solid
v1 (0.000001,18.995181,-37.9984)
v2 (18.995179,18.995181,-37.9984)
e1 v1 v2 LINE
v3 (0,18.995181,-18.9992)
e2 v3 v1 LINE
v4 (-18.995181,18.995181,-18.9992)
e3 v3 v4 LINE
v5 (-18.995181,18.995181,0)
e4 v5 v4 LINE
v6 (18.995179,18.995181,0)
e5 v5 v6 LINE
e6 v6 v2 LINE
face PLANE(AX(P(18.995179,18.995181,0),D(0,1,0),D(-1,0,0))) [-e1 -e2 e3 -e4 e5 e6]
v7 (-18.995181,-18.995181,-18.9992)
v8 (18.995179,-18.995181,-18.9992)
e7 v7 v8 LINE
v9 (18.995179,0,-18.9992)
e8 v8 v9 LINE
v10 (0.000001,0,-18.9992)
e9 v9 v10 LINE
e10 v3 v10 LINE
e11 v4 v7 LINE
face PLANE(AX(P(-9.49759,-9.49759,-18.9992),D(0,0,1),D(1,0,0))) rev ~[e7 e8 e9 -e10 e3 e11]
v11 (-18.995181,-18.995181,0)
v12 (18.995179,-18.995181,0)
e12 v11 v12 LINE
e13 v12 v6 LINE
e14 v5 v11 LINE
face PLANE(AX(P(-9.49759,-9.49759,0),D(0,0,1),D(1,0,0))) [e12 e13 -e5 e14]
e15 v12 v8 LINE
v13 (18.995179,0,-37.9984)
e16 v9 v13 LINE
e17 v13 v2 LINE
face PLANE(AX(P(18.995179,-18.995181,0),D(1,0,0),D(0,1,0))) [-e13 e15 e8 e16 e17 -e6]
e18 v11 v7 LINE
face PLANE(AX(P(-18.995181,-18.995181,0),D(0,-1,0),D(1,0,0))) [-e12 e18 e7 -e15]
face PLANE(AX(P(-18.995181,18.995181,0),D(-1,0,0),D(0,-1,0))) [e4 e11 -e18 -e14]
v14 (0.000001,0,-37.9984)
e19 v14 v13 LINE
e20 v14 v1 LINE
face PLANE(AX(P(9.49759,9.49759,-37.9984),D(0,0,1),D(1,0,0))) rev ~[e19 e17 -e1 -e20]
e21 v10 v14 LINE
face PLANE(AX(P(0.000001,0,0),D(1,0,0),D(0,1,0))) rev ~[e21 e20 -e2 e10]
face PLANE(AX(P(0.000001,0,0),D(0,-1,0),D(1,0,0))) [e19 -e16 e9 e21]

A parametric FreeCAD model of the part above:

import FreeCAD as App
import Part
import Sketcher

V = App.Vector
Q = App.Units.Quantity

doc = App.newDocument("Part")
body = doc.addObject("PartDesign::Body", "Body")

sketch1 = body.newObject("Sketcher::SketchObject", "Sketch")
sketch1.AttachmentSupport = (doc.getObject("XY_Plane"), [""])
sketch1.MapMode = "FlatFace"
sketch1.addGeometry([
    Part.LineSegment(V(0, 19, 0), V(0, 0, 0)),
    Part.LineSegment(V(0, 0, 0), V(19, 0, 0)),
    Part.LineSegment(V(19, 0, 0), V(19, 19, 0)),
    Part.LineSegment(V(19, 19, 0), V(0, 19, 0)),
], False)
sketch1.addConstraint([
    Sketcher.Constraint("Coincident", 0, 2, 1, 1),
    Sketcher.Constraint("Coincident", 1, 2, 2, 1),
    Sketcher.Constraint("Coincident", 2, 2, 3, 1),
    Sketcher.Constraint("Coincident", 3, 2, 0, 1),
    Sketcher.Constraint("Vertical", 0),
    Sketcher.Constraint("Horizontal", 1),
    Sketcher.Constraint("Vertical", 2),
    Sketcher.Constraint("Horizontal", 3),
    Sketcher.Constraint("Coincident", 0, 2, -1, 1),
    Sketcher.Constraint("Equal", 3, 0),
    Sketcher.Constraint("DistanceX", 1, 1, 1, 2, 18.995179),
])
pad1 = body.newObject("PartDesign::Pad", "Pad")
pad1.Profile = sketch1
pad1.Length = Q("1.496 in")
pad1.Reversed = True

sketch2 = body.newObject("Sketcher::SketchObject", "Sketch001")
sketch2.AttachmentSupport = (doc.getObject("XY_Plane"), [""])
sketch2.MapMode = "FlatFace"
sketch2.addGeometry([
    Part.LineSegment(V(-19, 19, 0), V(-19, -19, 0)),
    Part.LineSegment(V(-19, -19, 0), V(19, -19, 0)),
    Part.LineSegment(V(19, -19, 0), V(19, 19, 0)),
    Part.LineSegment(V(19, 19, 0), V(-19, 19, 0)),
], False)
sketch2.addConstraint([
    Sketcher.Constraint("Coincident", 0, 2, 1, 1),
    Sketcher.Constraint("Coincident", 1, 2, 2, 1),
    Sketcher.Constraint("Coincident", 2, 2, 3, 1),
    Sketcher.Constraint("Coincident", 3, 2, 0, 1),
    Sketcher.Constraint("Vertical", 0),
    Sketcher.Constraint("Horizontal", 1),
    Sketcher.Constraint("Vertical", 2),
    Sketcher.Constraint("Horizontal", 3),
    Sketcher.Constraint("Symmetric", 0, 2, 2, 2, -1, 1),
    Sketcher.Constraint("Equal", 3, 0),
    Sketcher.Constraint("DistanceX", 1, 1, 1, 2, 37.99036),
])
pad2 = body.newObject("PartDesign::Pad", "Pad001")
pad2.Profile = sketch2
pad2.Length = Q("0.748 in")
pad2.Reversed = True

doc.recompute()
